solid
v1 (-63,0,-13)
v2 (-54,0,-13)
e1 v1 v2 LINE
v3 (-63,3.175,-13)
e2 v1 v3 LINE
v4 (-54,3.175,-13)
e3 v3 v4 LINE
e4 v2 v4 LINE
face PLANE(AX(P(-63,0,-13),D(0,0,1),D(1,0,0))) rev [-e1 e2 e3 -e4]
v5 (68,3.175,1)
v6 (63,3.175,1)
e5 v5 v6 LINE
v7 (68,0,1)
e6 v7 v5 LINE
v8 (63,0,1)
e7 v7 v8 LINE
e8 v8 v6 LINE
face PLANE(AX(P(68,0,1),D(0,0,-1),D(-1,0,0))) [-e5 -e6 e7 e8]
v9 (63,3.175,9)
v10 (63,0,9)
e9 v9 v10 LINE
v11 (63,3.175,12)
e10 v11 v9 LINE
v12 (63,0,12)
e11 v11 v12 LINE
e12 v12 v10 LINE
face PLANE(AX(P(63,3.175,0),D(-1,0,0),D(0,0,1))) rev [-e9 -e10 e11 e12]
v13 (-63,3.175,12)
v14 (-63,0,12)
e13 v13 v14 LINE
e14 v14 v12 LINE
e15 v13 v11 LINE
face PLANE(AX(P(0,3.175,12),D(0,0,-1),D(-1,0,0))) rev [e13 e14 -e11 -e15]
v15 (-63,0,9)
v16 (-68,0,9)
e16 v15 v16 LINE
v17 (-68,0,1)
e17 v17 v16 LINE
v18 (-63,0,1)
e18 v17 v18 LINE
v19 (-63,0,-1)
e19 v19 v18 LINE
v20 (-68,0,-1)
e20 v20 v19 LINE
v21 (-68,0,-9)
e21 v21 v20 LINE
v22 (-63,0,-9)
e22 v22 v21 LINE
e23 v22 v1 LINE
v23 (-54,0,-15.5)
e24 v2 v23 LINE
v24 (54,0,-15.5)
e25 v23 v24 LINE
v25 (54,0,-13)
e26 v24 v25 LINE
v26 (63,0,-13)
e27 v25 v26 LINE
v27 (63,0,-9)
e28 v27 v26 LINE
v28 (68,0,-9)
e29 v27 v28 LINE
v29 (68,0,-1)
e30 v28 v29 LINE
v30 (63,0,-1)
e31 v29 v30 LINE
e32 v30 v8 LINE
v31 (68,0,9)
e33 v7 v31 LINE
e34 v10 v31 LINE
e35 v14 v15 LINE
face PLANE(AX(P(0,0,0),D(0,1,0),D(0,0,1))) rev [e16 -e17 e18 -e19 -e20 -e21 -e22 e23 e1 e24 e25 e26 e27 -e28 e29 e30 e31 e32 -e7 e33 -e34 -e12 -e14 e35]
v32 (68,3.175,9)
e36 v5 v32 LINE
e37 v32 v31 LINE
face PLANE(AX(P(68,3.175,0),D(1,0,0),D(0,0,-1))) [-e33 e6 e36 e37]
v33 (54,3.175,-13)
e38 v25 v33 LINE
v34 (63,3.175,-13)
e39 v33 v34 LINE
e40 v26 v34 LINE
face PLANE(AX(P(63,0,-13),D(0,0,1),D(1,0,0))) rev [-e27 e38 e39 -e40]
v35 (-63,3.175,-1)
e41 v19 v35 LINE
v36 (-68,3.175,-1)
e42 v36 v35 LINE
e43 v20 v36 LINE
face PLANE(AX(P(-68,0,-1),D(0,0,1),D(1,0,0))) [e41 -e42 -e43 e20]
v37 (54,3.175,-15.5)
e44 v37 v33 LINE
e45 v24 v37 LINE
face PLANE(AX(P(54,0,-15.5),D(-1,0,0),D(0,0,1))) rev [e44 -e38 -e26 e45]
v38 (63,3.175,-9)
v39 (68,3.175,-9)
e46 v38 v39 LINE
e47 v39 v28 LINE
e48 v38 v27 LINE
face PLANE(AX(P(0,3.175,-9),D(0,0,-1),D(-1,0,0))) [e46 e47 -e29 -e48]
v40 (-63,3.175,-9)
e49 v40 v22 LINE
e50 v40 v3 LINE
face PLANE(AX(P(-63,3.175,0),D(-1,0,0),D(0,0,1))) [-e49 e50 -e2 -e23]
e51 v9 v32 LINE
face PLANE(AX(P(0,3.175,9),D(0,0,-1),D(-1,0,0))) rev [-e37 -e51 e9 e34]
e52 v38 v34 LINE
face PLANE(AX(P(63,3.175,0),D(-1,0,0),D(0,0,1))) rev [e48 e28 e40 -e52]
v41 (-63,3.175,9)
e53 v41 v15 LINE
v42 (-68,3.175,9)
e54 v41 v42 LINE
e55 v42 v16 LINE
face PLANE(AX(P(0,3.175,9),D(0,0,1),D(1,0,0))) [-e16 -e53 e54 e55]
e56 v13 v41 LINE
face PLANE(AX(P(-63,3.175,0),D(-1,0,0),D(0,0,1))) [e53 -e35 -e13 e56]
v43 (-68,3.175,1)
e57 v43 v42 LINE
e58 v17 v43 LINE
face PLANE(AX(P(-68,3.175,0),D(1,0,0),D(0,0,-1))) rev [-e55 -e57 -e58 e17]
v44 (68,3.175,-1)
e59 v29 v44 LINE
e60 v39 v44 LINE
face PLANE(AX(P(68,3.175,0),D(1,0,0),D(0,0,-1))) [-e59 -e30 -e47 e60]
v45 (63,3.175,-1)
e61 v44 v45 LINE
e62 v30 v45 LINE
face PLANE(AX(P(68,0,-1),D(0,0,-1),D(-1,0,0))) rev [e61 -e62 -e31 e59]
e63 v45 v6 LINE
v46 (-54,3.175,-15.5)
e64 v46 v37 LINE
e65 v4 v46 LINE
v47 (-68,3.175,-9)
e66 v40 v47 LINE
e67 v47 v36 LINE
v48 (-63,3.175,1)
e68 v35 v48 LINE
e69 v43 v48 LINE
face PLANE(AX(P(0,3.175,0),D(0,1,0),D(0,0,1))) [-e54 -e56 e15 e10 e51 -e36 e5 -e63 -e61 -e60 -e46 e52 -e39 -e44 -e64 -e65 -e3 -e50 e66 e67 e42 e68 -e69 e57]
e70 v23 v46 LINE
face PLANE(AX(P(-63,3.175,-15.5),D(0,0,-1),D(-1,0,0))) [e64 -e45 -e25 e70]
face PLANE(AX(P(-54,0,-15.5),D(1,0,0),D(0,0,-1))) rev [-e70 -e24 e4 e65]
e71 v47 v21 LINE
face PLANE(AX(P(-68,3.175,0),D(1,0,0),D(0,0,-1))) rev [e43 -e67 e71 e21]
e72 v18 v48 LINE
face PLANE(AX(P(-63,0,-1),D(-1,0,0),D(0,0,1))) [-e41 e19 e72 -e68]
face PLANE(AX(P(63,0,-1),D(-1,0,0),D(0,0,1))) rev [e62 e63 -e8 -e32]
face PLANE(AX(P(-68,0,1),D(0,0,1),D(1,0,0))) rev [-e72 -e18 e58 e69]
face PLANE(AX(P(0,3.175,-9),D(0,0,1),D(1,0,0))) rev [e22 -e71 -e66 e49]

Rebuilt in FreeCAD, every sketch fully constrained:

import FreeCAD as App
import Part
import Sketcher
Q = App.Units.Quantity

doc = App.newDocument("Part")
params = doc.addObject("Spreadsheet::Sheet", "Params")
for row, (alias, value) in enumerate([
    ("sketch1_width", "5 mm"),
    ("sketch1_width2", "126 mm"),
    ("sketch1_height", "18 mm"),
    ("sketch1_height2", "3 mm"),
    ("sketch1_height3", "6.5 mm"),
    ("pad1_length", "3.175 mm"),
    ("sketch2_width", "9 mm"),
    ("sketch2_height", "2.5 mm"),
    ("sketch3_width", "5 mm"),
    ("sketch3_height", "2 mm"),
], start=1):
    params.set(f"A{row}", alias)
    params.set(f"B{row}", "=" + value)
    params.setAlias(f"B{row}", alias)

body = doc.addObject("PartDesign::Body", "Body")

sketch1 = body.newObject("Sketcher::SketchObject", "Sketch")
sketch1.AttachmentSupport = (doc.getObject("XZ_Plane"), [""])
sketch1.MapMode = "FlatFace"
sketch1.addGeometry([
    Part.LineSegment(App.Vector(-68, -9, 0), App.Vector(-68, 9, 0)),
    Part.LineSegment(App.Vector(-68, 9, 0), App.Vector(-63, 9, 0)),
    Part.LineSegment(App.Vector(-63, 9, 0), App.Vector(-63, 12, 0)),
    Part.LineSegment(App.Vector(-63, 12, 0), App.Vector(63, 12, 0)),
    Part.LineSegment(App.Vector(63, 12, 0), App.Vector(63, 9, 0)),
    Part.LineSegment(App.Vector(63, 9, 0), App.Vector(68, 9, 0)),
    Part.LineSegment(App.Vector(68, 9, 0), App.Vector(68, -9, 0)),
    Part.LineSegment(App.Vector(68, -9, 0), App.Vector(63, -9, 0)),
    Part.LineSegment(App.Vector(63, -9, 0), App.Vector(63, -15.5, 0)),
    Part.LineSegment(App.Vector(63, -15.5, 0), App.Vector(-63, -15.5, 0)),
    Part.LineSegment(App.Vector(-63, -15.5, 0), App.Vector(-63, -9, 0)),
    Part.LineSegment(App.Vector(-63, -9, 0), App.Vector(-68, -9, 0)),
], False)
sketch1.addConstraint([
    Sketcher.Constraint("Coincident", 0, 2, 1, 1),
    Sketcher.Constraint("Coincident", 1, 2, 2, 1),
    Sketcher.Constraint("Coincident", 2, 2, 3, 1),
    Sketcher.Constraint("Coincident", 3, 2, 4, 1),
    Sketcher.Constraint("Coincident", 4, 2, 5, 1),
    Sketcher.Constraint("Coincident", 5, 2, 6, 1),
    Sketcher.Constraint("Coincident", 6, 2, 7, 1),
    Sketcher.Constraint("Coincident", 7, 2, 8, 1),
    Sketcher.Constraint("Coincident", 8, 2, 9, 1),
    Sketcher.Constraint("Coincident", 9, 2, 10, 1),
    Sketcher.Constraint("Coincident", 10, 2, 11, 1),
    Sketcher.Constraint("Coincident", 11, 2, 0, 1),
    Sketcher.Constraint("Vertical", 0),
    Sketcher.Constraint("Horizontal", 1),
    Sketcher.Constraint("Vertical", 2),
    Sketcher.Constraint("Horizontal", 3),
    Sketcher.Constraint("Vertical", 4),
    Sketcher.Constraint("Horizontal", 5),
    Sketcher.Constraint("Vertical", 6),
    Sketcher.Constraint("Horizontal", 7),
    Sketcher.Constraint("Vertical", 8),
    Sketcher.Constraint("Horizontal", 9),
    Sketcher.Constraint("Vertical", 10),
    Sketcher.Constraint("Horizontal", 11),
    Sketcher.Constraint("Symmetric", 0, 2, 6, 2, -1, 1),
    Sketcher.Constraint("Symmetric", 4, 2, 10, 2, -1, 1),
    Sketcher.Constraint("Symmetric", 1, 2, 4, 2, -2),
    Sketcher.Constraint("Vertical", 4, 2, 7, 2),
    Sketcher.Constraint("DistanceX", 1, 1, 1, 2, Q("5 mm")),
    Sketcher.Constraint("DistanceX", 3, 1, 3, 2, Q("126 mm")),
    Sketcher.Constraint("DistanceY", 0, 1, 0, 2, Q("18 mm")),
    Sketcher.Constraint("DistanceY", 2, 1, 2, 2, Q("3 mm")),
    Sketcher.Constraint("DistanceY", 8, 2, 8, 1, Q("6.5 mm")),
])
sketch1.setExpression("Constraints[28]", "Params.sketch1_width")
sketch1.setExpression("Constraints[29]", "Params.sketch1_width2")
sketch1.setExpression("Constraints[30]", "Params.sketch1_height")
sketch1.setExpression("Constraints[31]", "Params.sketch1_height2")
sketch1.setExpression("Constraints[32]", "Params.sketch1_height3")
pad1 = body.newObject("PartDesign::Pad", "Pad")
pad1.Profile = sketch1
pad1.setExpression("Length", "Params.pad1_length")
pad1.Reversed = True

sketch2 = body.newObject("Sketcher::SketchObject", "Sketch001")
sketch2.AttachmentSupport = (doc.getObject("XZ_Plane"), [""])
sketch2.MapMode = "FlatFace"
sketch2.AttachmentOffset = App.Placement(App.Vector(0, 0, -3.175), App.Rotation())
sketch2.addGeometry([
    Part.LineSegment(App.Vector(-63, -15.5, 0), App.Vector(-63, -13, 0)),
    Part.LineSegment(App.Vector(-63, -13, 0), App.Vector(-54, -13, 0)),
    Part.LineSegment(App.Vector(-54, -13, 0), App.Vector(-54, -15.5, 0)),
    Part.LineSegment(App.Vector(-54, -15.5, 0), App.Vector(-63, -15.5, 0)),
    Part.LineSegment(App.Vector(54, -15.5, 0), App.Vector(54, -13, 0)),
    Part.LineSegment(App.Vector(54, -13, 0), App.Vector(63, -13, 0)),
    Part.LineSegment(App.Vector(63, -13, 0), App.Vector(63, -15.5, 0)),
    Part.LineSegment(App.Vector(63, -15.5, 0), App.Vector(54, -15.5, 0)),
], False)
sketch2.addConstraint([
    Sketcher.Constraint("Coincident", 0, 2, 1, 1),
    Sketcher.Constraint("Coincident", 1, 2, 2, 1),
    Sketcher.Constraint("Coincident", 2, 2, 3, 1),
    Sketcher.Constraint("Coincident", 3, 2, 0, 1),
    Sketcher.Constraint("Coincident", 4, 2, 5, 1),
    Sketcher.Constraint("Coincident", 5, 2, 6, 1),
    Sketcher.Constraint("Coincident", 6, 2, 7, 1),
    Sketcher.Constraint("Coincident", 7, 2, 4, 1),
    Sketcher.Constraint("Vertical", 0),
    Sketcher.Constraint("Horizontal", 1),
    Sketcher.Constraint("Vertical", 2),
    Sketcher.Constraint("Horizontal", 3),
    Sketcher.Constraint("Vertical", 4),
    Sketcher.Constraint("Horizontal", 5),
    Sketcher.Constraint("Vertical", 6),
    Sketcher.Constraint("Horizontal", 7),
    Sketcher.Constraint("Symmetric", 1, 2, 4, 2, -2),
    Sketcher.Constraint("Symmetric", 3, 2, 6, 2, -2),
    Sketcher.Constraint("DistanceX", 1, 1, 1, 2, Q("9 mm")),
    Sketcher.Constraint("DistanceY", 0, 1, 0, 2, Q("2.5 mm")),
    Sketcher.Constraint("DistanceX", 0, 2, -1, 1, Q("63 mm")),
    Sketcher.Constraint("DistanceY", 0, 2, -1, 1, Q("13 mm")),
])
sketch2.setExpression("Constraints[18]", "Params.sketch2_width")
sketch2.setExpression("Constraints[19]", "Params.sketch2_height")
pocket1 = body.newObject("PartDesign::Pocket", "Pocket")
pocket1.Profile = sketch2
pocket1.Type = "ThroughAll"
pocket1.Reversed = True

sketch3 = body.newObject("Sketcher::SketchObject", "Sketch002")
sketch3.AttachmentSupport = (doc.getObject("XZ_Plane"), [""])
sketch3.MapMode = "FlatFace"
sketch3.AttachmentOffset = App.Placement(App.Vector(0, 0, -3.175), App.Rotation())
sketch3.addGeometry([
    Part.LineSegment(App.Vector(-68, -1, 0), App.Vector(-68, 1, 0)),
    Part.LineSegment(App.Vector(-68, 1, 0), App.Vector(-63, 1, 0)),
    Part.LineSegment(App.Vector(-63, 1, 0), App.Vector(-63, -1, 0)),
    Part.LineSegment(App.Vector(-63, -1, 0), App.Vector(-68, -1, 0)),
    Part.LineSegment(App.Vector(63, -1, 0), App.Vector(63, 1, 0)),
    Part.LineSegment(App.Vector(63, 1, 0), App.Vector(68, 1, 0)),
    Part.LineSegment(App.Vector(68, 1, 0), App.Vector(68, -1, 0)),
    Part.LineSegment(App.Vector(68, -1, 0), App.Vector(63, -1, 0)),
], False)
sketch3.addConstraint([
    Sketcher.Constraint("Coincident", 0, 2, 1, 1),
    Sketcher.Constraint("Coincident", 1, 2, 2, 1),
    Sketcher.Constraint("Coincident", 2, 2, 3, 1),
    Sketcher.Constraint("Coincident", 3, 2, 0, 1),
    Sketcher.Constraint("Coincident", 4, 2, 5, 1),
    Sketcher.Constraint("Coincident", 5, 2, 6, 1),
    Sketcher.Constraint("Coincident", 6, 2, 7, 1),
    Sketcher.Constraint("Coincident", 7, 2, 4, 1),
    Sketcher.Constraint("Vertical", 0),
    Sketcher.Constraint("Horizontal", 1),
    Sketcher.Constraint("Vertical", 2),
    Sketcher.Constraint("Horizontal", 3),
    Sketcher.Constraint("Vertical", 4),
    Sketcher.Constraint("Horizontal", 5),
    Sketcher.Constraint("Vertical", 6),
    Sketcher.Constraint("Horizontal", 7),
    Sketcher.Constraint("Symmetric", 2, 2, 4, 2, -1, 1),
    Sketcher.Constraint("Symmetric", 0, 2, 6, 2, -1, 1),
    Sketcher.Constraint("Horizontal", 1, 2, 4, 2),
    Sketcher.Constraint("DistanceX", 1, 1, 1, 2, Q("5 mm")),
    Sketcher.Constraint("DistanceY", 0, 1, 0, 2, Q("2 mm")),
    Sketcher.Constraint("DistanceX", 0, 2, -1, 1, Q("68 mm")),
])
sketch3.setExpression("Constraints[19]", "Params.sketch3_width")
sketch3.setExpression("Constraints[20]", "Params.sketch3_height")
pocket2 = body.newObject("PartDesign::Pocket", "Pocket001")
pocket2.Profile = sketch3
pocket2.Type = "ThroughAll"
pocket2.Midplane = True

doc.recompute()
